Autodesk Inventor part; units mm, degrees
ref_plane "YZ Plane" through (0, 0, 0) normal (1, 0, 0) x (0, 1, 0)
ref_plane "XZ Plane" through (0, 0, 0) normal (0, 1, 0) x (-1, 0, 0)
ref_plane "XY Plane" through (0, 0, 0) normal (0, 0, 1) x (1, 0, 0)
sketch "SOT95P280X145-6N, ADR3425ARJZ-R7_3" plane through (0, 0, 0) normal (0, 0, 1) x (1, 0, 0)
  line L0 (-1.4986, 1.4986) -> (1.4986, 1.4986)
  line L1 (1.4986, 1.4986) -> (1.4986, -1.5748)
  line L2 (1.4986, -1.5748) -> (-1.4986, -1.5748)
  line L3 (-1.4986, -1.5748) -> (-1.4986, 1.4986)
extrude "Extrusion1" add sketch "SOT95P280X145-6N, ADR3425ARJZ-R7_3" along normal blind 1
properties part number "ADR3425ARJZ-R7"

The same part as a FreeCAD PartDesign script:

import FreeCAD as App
import Part
import Sketcher

V = App.Vector
Q = App.Units.Quantity


def add_polygon(sketch, points):
    """Adds a closed chain of lines whose ends are joined by coincident constraints."""
    first, n = sketch.GeometryCount, len(points)
    for a, b in zip(points, points[1:] + points[:1]):
        sketch.addGeometry(Part.LineSegment(App.Vector(*a, 0), App.Vector(*b, 0)), False)
    for i in range(n):
        sketch.addConstraint(Sketcher.Constraint("Coincident", first + i, 2, first + (i + 1) % n, 1))

doc = App.newDocument("Part")
body = doc.addObject("PartDesign::Body", "Body")

sketch1 = body.newObject("Sketcher::SketchObject", "Sketch")
sketch1.AttachmentSupport = (doc.getObject("XY_Plane"), [""])
sketch1.MapMode = "FlatFace"
add_polygon(sketch1, [(1.5, 1.5), (-1.5, 1.5), (-1.5, -1.6), (1.5, -1.6)])
sketch1.addConstraint(Sketcher.Constraint("Horizontal", 0))
sketch1.addConstraint(Sketcher.Constraint("Vertical", 1))
sketch1.addConstraint(Sketcher.Constraint("Horizontal", 2))
sketch1.addConstraint(Sketcher.Constraint("Vertical", 3))
sketch1.addConstraint(Sketcher.Constraint("DistanceX", 0, 2, 0, 1, Q("0.118 in")))
sketch1.addConstraint(Sketcher.Constraint("DistanceY", 1, 2, 1, 1, Q("0.121 in")))
sketch1.addConstraint(Sketcher.Constraint("DistanceX", 0, 2, -1, 1, Q("0.059 in")))
sketch1.addConstraint(Sketcher.Constraint("DistanceY", -1, 1, 0, 2, Q("0.059 in")))
pad1 = body.newObject("PartDesign::Pad", "Pad")
pad1.Profile = sketch1
pad1.Length = 1

doc.recompute()
